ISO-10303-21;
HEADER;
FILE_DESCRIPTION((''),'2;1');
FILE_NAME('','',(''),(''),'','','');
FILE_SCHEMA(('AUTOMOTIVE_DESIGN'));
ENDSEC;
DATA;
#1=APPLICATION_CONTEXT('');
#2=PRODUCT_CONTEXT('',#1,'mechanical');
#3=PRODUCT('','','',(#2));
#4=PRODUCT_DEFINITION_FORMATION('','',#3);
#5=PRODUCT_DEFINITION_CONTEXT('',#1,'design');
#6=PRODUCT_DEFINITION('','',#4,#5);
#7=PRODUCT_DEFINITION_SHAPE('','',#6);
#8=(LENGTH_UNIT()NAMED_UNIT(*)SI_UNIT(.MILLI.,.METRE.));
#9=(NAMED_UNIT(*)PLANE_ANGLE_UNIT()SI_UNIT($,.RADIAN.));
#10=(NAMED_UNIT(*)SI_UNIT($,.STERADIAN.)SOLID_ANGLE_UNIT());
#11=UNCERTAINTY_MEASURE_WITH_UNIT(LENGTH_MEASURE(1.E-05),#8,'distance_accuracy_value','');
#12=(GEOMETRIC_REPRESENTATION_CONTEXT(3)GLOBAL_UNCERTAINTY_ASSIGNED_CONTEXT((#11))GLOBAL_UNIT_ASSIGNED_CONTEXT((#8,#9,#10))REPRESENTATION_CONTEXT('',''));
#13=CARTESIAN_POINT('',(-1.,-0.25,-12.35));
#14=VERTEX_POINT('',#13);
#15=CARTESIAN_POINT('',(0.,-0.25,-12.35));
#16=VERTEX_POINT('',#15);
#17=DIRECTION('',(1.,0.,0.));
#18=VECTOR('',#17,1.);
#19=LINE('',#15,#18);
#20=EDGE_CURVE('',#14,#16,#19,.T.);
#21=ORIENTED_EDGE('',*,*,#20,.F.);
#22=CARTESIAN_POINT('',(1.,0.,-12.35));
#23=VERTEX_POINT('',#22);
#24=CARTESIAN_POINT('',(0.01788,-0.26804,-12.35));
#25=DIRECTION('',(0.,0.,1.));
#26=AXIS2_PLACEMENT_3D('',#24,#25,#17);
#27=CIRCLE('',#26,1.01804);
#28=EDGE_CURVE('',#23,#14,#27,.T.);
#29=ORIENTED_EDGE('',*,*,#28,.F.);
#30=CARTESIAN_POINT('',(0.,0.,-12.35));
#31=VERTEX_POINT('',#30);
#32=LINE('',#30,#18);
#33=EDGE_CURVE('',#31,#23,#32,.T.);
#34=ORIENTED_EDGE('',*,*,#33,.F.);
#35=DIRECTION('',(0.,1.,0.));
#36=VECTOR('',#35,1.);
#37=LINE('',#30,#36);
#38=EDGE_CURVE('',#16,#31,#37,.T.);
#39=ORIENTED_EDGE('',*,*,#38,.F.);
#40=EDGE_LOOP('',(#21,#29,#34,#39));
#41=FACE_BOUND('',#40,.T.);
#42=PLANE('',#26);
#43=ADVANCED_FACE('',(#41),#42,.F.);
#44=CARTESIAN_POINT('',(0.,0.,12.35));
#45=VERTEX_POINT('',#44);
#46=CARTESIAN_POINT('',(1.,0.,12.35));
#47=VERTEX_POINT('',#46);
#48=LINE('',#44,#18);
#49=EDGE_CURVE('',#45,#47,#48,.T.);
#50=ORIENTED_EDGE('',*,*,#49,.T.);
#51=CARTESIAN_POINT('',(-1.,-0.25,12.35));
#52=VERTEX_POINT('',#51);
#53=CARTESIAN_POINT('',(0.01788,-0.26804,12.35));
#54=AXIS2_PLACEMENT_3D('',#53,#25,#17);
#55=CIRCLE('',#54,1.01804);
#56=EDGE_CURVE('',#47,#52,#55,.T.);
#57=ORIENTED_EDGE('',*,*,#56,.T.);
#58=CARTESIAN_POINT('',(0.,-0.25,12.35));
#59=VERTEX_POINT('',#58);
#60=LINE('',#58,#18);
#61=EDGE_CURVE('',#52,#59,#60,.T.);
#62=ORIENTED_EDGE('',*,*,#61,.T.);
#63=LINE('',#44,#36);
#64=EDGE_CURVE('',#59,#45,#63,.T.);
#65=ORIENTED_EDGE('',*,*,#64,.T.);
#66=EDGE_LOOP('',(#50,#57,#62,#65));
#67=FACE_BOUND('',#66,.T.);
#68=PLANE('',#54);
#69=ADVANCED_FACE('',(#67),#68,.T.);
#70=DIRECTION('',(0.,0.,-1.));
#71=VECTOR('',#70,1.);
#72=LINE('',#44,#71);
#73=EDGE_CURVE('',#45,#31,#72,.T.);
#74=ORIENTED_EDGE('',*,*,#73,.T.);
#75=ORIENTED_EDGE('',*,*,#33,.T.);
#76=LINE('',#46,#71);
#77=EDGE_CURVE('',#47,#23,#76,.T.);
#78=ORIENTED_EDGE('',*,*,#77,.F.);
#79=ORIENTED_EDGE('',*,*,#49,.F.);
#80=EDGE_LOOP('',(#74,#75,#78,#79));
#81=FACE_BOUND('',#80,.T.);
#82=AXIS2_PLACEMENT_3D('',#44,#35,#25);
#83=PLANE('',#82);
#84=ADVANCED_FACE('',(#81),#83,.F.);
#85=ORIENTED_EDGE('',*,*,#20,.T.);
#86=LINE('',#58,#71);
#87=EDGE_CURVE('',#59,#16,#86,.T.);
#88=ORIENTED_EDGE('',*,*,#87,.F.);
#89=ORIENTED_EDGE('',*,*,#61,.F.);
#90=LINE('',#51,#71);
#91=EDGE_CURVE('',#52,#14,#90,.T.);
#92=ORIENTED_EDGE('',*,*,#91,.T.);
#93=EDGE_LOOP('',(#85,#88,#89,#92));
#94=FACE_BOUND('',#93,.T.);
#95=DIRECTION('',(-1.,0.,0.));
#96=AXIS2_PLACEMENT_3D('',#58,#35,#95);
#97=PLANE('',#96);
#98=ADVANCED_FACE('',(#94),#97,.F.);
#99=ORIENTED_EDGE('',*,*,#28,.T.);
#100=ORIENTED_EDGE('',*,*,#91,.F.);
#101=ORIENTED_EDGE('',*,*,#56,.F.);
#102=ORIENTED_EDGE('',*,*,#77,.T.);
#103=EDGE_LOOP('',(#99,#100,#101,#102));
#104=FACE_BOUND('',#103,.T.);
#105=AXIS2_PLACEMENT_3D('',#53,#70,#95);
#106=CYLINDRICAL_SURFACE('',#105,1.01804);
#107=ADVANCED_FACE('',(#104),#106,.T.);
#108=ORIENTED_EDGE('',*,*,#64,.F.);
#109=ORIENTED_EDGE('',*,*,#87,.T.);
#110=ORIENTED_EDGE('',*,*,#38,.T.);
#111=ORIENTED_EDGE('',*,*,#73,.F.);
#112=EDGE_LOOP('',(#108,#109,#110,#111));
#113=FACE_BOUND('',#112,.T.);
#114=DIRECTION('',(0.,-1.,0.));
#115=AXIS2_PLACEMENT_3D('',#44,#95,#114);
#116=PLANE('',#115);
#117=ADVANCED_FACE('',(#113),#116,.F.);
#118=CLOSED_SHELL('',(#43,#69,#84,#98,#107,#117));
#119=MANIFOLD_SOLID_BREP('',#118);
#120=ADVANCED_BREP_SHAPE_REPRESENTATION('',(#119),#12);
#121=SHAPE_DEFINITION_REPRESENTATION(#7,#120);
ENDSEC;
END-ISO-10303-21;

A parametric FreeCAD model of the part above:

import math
import FreeCAD as App
import Part
import Sketcher
from FreeCAD import Vector
Q = App.Units.Quantity

doc = App.newDocument("Part")
params = doc.addObject("Spreadsheet::Sheet", "Params")
for row, (alias, value) in enumerate([
    ("sketch1_width", "1 mm"),
    ("sketch1_height", "0.25 mm"),
    ("pad1_length", "24.7 mm"),
], start=1):
    params.set(f"A{row}", alias)
    params.set(f"B{row}", "=" + value)
    params.setAlias(f"B{row}", alias)

body = doc.addObject("PartDesign::Body", "Body")

# Sketch on XY plane
sketch1 = body.newObject("Sketcher::SketchObject", "Sketch")
sketch1.AttachmentSupport = (doc.getObject("XY_Plane"), [""])
sketch1.MapMode = "FlatFace"
sketch1.addGeometry(Part.LineSegment(Vector(0, -0.25, 0), Vector(0, 0, 0)), False)
sketch1.addGeometry(Part.LineSegment(Vector(0, 0, 0), Vector(1, 0, 0)), False)
sketch1.addGeometry(Part.ArcOfCircle(Part.Circle(Vector(0.02, -0.27, 0), Vector(0, 0, 1), 1.02), math.radians(15), math.radians(179)), False)
sketch1.addGeometry(Part.LineSegment(Vector(-1, -0.25, 0), Vector(0, -0.25, 0)), False)
sketch1.addConstraint(Sketcher.Constraint("Coincident", 0, 2, 1, 1))
sketch1.addConstraint(Sketcher.Constraint("Coincident", 1, 2, 2, 1))
sketch1.addConstraint(Sketcher.Constraint("Coincident", 2, 2, 3, 1))
sketch1.addConstraint(Sketcher.Constraint("Coincident", 3, 2, 0, 1))
sketch1.addConstraint(Sketcher.Constraint("Vertical", 0))
sketch1.addConstraint(Sketcher.Constraint("Horizontal", 1))
sketch1.addConstraint(Sketcher.Constraint("Horizontal", 3))
sketch1.addConstraint(Sketcher.Constraint("Coincident", 0, 2, -1, 1))
sketch1.addConstraint(Sketcher.Constraint("Equal", 1, 3))
sketch1.addConstraint(Sketcher.Constraint("DistanceX", 1, 1, 1, 2, Q("1 mm")))
sketch1.addConstraint(Sketcher.Constraint("DistanceY", 0, 1, 0, 2, Q("0.25 mm")))
sketch1.addConstraint(Sketcher.Constraint("Radius", 2, Q("1.01804 mm")))
sketch1.setExpression("Constraints[9]", "Params.sketch1_width")
sketch1.setExpression("Constraints[10]", "Params.sketch1_height")
pad1 = body.newObject("PartDesign::Pad", "Pad")
pad1.Profile = sketch1
pad1.setExpression("Length", "Params.pad1_length")
pad1.Midplane = True

doc.recompute()
